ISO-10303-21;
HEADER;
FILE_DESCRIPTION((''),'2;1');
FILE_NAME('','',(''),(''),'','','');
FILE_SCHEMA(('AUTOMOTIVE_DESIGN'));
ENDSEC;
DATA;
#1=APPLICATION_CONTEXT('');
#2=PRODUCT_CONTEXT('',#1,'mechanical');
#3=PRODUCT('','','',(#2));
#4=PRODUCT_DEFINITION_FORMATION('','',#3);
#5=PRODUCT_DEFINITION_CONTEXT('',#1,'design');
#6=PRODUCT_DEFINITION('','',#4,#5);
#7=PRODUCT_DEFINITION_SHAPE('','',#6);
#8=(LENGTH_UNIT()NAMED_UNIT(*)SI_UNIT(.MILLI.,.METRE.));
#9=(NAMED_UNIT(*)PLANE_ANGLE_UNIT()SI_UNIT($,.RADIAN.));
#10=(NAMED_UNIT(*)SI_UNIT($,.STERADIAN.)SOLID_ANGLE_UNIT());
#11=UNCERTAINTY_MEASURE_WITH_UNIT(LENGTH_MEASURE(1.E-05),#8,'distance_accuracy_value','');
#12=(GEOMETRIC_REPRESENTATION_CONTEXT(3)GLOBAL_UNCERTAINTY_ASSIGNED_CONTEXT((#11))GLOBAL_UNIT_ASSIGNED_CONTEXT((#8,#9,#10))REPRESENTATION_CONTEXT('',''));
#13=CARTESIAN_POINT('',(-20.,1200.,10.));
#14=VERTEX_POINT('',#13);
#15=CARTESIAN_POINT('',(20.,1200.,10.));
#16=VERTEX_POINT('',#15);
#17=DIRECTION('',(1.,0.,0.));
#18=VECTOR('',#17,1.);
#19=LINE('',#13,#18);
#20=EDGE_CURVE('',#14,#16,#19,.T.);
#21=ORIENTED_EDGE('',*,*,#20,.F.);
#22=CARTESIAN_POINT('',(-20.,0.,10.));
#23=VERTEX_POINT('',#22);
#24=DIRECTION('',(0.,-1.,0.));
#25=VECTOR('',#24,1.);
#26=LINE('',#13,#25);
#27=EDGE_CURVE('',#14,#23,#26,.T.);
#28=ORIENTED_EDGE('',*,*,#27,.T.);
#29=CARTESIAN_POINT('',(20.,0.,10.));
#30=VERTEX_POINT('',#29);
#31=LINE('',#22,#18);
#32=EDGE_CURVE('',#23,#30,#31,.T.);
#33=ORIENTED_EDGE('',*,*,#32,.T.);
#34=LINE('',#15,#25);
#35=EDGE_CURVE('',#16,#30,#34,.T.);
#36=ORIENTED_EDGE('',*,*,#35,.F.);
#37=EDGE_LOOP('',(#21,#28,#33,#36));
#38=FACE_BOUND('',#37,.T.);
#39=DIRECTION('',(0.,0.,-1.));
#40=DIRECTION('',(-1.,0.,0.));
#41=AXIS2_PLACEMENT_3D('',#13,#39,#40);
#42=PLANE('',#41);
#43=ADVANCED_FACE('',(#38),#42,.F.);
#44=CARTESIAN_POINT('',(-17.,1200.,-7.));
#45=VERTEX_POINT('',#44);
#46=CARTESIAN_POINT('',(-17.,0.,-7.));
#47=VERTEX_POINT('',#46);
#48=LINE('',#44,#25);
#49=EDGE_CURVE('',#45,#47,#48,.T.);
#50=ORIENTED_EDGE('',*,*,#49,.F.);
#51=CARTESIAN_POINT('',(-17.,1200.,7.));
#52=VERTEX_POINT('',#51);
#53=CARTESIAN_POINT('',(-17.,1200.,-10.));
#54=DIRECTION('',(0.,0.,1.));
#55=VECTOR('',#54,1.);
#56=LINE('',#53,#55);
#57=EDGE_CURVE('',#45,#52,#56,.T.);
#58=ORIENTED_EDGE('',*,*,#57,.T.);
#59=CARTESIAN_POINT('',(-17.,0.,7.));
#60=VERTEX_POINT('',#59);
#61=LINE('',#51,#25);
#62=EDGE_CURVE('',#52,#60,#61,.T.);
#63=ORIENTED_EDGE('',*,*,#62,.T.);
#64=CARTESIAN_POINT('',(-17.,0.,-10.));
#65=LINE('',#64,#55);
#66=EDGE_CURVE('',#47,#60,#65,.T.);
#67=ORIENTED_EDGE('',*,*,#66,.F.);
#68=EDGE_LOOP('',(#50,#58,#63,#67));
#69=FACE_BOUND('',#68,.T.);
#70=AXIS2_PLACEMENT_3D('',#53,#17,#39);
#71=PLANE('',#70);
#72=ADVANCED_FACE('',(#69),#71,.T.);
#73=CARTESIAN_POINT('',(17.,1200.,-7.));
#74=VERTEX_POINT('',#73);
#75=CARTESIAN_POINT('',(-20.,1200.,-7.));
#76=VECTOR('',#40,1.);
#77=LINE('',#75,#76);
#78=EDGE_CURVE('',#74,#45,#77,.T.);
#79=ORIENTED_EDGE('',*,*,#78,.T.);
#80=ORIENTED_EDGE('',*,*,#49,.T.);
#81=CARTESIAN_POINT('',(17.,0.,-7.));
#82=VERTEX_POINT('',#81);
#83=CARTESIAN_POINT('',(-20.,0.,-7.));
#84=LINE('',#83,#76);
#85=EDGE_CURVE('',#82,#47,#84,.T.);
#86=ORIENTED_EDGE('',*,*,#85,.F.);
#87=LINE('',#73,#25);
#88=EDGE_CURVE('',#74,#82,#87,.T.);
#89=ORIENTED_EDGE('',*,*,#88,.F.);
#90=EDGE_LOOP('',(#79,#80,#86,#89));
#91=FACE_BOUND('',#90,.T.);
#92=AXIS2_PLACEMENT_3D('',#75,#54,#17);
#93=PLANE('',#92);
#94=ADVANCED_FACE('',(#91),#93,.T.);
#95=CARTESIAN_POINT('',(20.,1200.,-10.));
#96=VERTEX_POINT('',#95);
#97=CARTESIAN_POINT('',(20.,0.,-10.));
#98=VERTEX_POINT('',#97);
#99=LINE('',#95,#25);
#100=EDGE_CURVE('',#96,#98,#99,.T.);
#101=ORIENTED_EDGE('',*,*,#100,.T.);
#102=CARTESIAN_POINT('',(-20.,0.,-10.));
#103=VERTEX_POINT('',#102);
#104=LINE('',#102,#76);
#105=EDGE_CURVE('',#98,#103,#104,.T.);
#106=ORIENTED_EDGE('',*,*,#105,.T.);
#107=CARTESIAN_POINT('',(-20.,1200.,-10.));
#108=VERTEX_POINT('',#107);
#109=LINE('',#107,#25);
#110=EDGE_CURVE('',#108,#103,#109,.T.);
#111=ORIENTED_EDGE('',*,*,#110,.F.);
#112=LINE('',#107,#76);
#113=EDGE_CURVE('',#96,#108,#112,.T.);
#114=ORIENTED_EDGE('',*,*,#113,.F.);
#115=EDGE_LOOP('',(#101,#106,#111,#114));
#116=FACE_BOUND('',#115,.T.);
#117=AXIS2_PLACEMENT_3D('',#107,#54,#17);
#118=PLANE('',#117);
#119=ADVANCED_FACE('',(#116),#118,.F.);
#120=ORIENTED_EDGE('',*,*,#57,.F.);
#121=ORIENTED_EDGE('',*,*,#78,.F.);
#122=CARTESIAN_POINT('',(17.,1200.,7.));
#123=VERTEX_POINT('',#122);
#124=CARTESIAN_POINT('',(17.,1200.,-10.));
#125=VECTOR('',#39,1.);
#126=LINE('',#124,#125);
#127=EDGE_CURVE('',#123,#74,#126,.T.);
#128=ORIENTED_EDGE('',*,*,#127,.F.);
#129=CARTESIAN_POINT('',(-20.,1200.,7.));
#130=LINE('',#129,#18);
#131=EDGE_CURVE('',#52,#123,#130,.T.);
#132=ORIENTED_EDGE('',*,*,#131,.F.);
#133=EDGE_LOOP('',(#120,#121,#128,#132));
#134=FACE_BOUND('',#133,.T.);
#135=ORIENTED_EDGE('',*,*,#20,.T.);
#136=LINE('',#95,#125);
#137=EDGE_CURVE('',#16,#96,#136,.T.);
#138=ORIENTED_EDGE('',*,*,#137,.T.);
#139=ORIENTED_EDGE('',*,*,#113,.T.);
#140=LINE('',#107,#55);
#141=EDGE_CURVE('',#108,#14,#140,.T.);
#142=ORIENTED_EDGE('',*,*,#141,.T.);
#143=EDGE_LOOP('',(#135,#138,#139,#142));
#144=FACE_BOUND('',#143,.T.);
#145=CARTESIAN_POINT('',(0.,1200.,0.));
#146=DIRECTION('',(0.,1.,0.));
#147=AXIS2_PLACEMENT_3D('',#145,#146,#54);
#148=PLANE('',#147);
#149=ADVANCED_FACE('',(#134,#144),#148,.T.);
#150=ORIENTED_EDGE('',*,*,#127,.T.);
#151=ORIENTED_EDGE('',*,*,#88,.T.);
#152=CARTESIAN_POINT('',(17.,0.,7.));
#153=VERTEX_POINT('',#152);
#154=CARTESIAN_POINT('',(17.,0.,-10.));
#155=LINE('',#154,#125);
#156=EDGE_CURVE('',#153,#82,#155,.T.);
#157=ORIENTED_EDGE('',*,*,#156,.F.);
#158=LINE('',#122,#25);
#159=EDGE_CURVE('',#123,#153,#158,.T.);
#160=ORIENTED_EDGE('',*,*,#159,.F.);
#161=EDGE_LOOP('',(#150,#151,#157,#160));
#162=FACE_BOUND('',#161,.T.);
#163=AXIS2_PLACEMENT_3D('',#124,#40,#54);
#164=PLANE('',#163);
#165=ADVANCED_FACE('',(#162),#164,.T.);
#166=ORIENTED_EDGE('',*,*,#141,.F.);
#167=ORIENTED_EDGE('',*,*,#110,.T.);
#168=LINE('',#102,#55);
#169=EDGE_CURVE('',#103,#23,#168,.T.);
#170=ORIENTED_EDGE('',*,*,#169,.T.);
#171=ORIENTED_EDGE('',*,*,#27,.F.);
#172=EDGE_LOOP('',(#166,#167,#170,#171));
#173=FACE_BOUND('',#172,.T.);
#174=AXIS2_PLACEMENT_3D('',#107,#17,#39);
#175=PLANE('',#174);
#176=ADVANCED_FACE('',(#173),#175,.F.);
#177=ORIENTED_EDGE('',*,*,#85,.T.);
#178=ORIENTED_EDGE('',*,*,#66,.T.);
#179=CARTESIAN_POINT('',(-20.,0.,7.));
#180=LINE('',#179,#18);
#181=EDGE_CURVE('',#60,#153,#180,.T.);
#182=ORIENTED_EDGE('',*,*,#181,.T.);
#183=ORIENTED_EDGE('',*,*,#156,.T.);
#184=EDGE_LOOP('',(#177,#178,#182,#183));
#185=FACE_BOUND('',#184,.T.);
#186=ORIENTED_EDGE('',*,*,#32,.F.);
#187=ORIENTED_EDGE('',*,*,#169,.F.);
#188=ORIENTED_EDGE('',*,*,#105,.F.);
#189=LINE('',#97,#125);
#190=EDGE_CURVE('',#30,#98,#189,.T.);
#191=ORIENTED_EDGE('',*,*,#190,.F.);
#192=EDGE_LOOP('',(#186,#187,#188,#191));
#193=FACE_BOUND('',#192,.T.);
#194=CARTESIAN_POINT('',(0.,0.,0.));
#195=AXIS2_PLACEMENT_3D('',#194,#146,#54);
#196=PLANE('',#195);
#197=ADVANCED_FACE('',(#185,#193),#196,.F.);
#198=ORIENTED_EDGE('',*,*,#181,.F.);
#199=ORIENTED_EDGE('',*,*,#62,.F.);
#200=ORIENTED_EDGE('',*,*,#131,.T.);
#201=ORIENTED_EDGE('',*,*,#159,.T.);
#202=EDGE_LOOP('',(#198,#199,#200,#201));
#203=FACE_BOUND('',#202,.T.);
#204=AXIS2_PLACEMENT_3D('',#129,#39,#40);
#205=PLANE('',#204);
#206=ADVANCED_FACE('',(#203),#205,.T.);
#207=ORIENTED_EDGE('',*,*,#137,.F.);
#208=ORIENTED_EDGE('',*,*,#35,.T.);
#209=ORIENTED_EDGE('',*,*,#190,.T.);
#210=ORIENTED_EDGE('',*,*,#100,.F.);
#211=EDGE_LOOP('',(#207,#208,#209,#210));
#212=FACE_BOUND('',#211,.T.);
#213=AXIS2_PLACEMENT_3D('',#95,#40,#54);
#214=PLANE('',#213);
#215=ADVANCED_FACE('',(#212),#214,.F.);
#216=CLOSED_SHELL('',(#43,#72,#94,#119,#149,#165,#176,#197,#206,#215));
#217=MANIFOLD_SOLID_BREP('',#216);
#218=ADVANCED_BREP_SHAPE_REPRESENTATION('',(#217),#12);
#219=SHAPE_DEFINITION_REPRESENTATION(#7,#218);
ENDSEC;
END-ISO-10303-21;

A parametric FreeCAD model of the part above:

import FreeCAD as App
import Part
import Sketcher

V = App.Vector


def add_polygon(sketch, points):
    """Adds a closed chain of lines whose ends are joined by coincident constraints."""
    first, n = sketch.GeometryCount, len(points)
    for a, b in zip(points, points[1:] + points[:1]):
        sketch.addGeometry(Part.LineSegment(App.Vector(*a, 0), App.Vector(*b, 0)), False)
    for i in range(n):
        sketch.addConstraint(Sketcher.Constraint("Coincident", first + i, 2, first + (i + 1) % n, 1))

doc = App.newDocument("Part")
body = doc.addObject("PartDesign::Body", "Body")

sketch1 = doc.addObject("Sketcher::SketchObject", "Sketch")
body.addObject(sketch1)
sketch1.AttachmentSupport = (doc.XZ_Plane, [""])
sketch1.MapMode = "FlatFace"
add_polygon(sketch1, [(-20, -10), (-20, 10), (20, 10), (20, -10)])
add_polygon(sketch1, [(17, 7), (-17, 7), (-17, -7), (17, -7)])
sketch1.addConstraint(Sketcher.Constraint("Vertical", 0))
sketch1.addConstraint(Sketcher.Constraint("Horizontal", 1))
sketch1.addConstraint(Sketcher.Constraint("Vertical", 2))
sketch1.addConstraint(Sketcher.Constraint("Horizontal", 3))
sketch1.addConstraint(Sketcher.Constraint("Horizontal", 4))
sketch1.addConstraint(Sketcher.Constraint("Vertical", 5))
sketch1.addConstraint(Sketcher.Constraint("Horizontal", 6))
sketch1.addConstraint(Sketcher.Constraint("Vertical", 7))
sketch1.addConstraint(Sketcher.Constraint("Symmetric", 0, 2, 2, 2, -1, 1))
sketch1.addConstraint(Sketcher.Constraint("Symmetric", 4, 2, 6, 2, -1, 1))
sketch1.addConstraint(Sketcher.Constraint("DistanceX", 1, 1, 1, 2, 40.0))
sketch1.addConstraint(Sketcher.Constraint("DistanceX", 4, 2, 4, 1, 34.0))
sketch1.addConstraint(Sketcher.Constraint("DistanceY", 0, 1, 0, 2, 20.0))
sketch1.addConstraint(Sketcher.Constraint("DistanceY", 5, 2, 5, 1, 14.0))
pad1 = doc.addObject("PartDesign::Pad", "Pad")
body.addObject(pad1)
pad1.Profile = sketch1
pad1.Length = 1200
pad1.Reversed = True

doc.recompute()
